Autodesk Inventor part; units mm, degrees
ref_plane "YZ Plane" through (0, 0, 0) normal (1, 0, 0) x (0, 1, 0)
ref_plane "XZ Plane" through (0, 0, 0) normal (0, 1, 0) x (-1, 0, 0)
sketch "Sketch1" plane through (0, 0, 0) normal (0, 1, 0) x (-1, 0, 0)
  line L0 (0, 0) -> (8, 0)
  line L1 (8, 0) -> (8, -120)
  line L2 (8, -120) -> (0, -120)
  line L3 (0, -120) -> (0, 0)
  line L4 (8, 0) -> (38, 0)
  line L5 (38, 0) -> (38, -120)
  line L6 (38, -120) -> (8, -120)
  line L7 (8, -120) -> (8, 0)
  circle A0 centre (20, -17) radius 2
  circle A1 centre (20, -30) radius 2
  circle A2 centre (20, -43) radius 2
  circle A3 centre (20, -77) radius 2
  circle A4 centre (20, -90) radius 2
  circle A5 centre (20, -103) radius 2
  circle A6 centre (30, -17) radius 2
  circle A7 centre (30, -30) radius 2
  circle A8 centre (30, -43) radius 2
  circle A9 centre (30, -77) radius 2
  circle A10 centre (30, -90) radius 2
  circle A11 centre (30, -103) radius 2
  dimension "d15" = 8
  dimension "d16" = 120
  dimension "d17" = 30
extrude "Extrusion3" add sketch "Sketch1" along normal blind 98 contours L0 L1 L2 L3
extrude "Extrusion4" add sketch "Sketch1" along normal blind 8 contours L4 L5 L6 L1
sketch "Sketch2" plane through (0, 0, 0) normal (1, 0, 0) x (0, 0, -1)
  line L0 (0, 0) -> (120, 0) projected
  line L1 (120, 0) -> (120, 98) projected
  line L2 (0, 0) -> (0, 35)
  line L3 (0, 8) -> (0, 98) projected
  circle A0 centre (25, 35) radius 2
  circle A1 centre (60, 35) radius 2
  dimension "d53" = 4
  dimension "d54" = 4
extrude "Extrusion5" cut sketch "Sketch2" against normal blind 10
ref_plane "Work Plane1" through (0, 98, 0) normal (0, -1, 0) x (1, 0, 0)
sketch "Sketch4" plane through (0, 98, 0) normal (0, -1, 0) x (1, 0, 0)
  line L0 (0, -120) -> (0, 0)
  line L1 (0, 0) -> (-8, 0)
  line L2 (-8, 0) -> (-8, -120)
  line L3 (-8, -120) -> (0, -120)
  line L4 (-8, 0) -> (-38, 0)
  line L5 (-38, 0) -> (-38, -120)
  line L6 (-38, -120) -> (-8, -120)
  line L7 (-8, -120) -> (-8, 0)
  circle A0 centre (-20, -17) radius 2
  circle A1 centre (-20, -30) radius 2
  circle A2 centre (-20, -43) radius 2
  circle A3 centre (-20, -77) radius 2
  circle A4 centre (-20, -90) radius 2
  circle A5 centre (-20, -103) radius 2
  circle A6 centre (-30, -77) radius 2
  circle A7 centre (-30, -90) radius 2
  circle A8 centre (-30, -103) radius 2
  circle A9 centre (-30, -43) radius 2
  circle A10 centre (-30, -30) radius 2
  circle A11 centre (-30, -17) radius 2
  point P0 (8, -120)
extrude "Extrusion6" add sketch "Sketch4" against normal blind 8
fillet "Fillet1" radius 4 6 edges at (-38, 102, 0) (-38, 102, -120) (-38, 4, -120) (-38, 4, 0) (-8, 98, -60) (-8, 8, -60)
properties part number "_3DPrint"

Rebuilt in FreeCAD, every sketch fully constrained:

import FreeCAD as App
import Part
import Sketcher

V = App.Vector
Q = App.Units.Quantity


def edges_at(feature, points):
    """Names of the edges that pass closest to the given points."""
    edges = feature.Shape.Edges
    near = lambda p: min(range(len(edges)), key=lambda i: edges[i].distToShape(Part.Vertex(*p))[0])
    return sorted({f"Edge{near(p) + 1}" for p in points})


def add_polygon(sketch, points):
    """Adds a closed chain of lines whose ends are joined by coincident constraints."""
    first, n = sketch.GeometryCount, len(points)
    for a, b in zip(points, points[1:] + points[:1]):
        sketch.addGeometry(Part.LineSegment(App.Vector(*a, 0), App.Vector(*b, 0)), False)
    for i in range(n):
        sketch.addConstraint(Sketcher.Constraint("Coincident", first + i, 2, first + (i + 1) % n, 1))

doc = App.newDocument("Part")
body = doc.addObject("PartDesign::Body", "Body")

sketch1 = doc.addObject("Sketcher::SketchObject", "Sketch")
body.addObject(sketch1)
sketch1.AttachmentSupport = (doc.XZ_Plane, [""])
sketch1.MapMode = "FlatFace"
add_polygon(sketch1, [(-8, 0), (0, 0), (0, -120), (-8, -120)])
sketch1.addConstraint([
    Sketcher.Constraint("Horizontal", 0),
    Sketcher.Constraint("Vertical", 1),
    Sketcher.Constraint("Horizontal", 2),
    Sketcher.Constraint("Vertical", 3),
    Sketcher.Constraint("Coincident", 0, 2, -1, 1),
    Sketcher.Constraint("DistanceX", 0, 1, 0, 2, Q("8 mm")),
    Sketcher.Constraint("DistanceY", 1, 2, 1, 1, Q("120 mm")),
])
pad1 = doc.addObject("PartDesign::Pad", "Pad")
body.addObject(pad1)
pad1.Profile = sketch1
pad1.Length = 98
pad1.Reversed = True

sketch2 = doc.addObject("Sketcher::SketchObject", "Sketch001")
body.addObject(sketch2)
sketch2.AttachmentSupport = (doc.XZ_Plane, [""])
sketch2.MapMode = "FlatFace"
add_polygon(sketch2, [(-38, 0), (-8, 0), (-8, -120), (-38, -120)])
sketch2.addGeometry(Part.Circle(V(-20, -103, 0), V(0, 0, 1), 2), False)
sketch2.addGeometry(Part.Circle(V(-30, -103, 0), V(0, 0, 1), 2), False)
sketch2.addGeometry(Part.Circle(V(-20, -90, 0), V(0, 0, 1), 2), False)
sketch2.addGeometry(Part.Circle(V(-20, -77, 0), V(0, 0, 1), 2), False)
sketch2.addGeometry(Part.Circle(V(-30, -90, 0), V(0, 0, 1), 2), False)
sketch2.addGeometry(Part.Circle(V(-30, -77, 0), V(0, 0, 1), 2), False)
sketch2.addGeometry(Part.Circle(V(-20, -43, 0), V(0, 0, 1), 2), False)
sketch2.addGeometry(Part.Circle(V(-30, -43, 0), V(0, 0, 1), 2), False)
sketch2.addGeometry(Part.Circle(V(-20, -30, 0), V(0, 0, 1), 2), False)
sketch2.addGeometry(Part.Circle(V(-20, -17, 0), V(0, 0, 1), 2), False)
sketch2.addGeometry(Part.Circle(V(-30, -30, 0), V(0, 0, 1), 2), False)
sketch2.addGeometry(Part.Circle(V(-30, -17, 0), V(0, 0, 1), 2), False)
sketch2.addConstraint([
    Sketcher.Constraint("Horizontal", 0),
    Sketcher.Constraint("Vertical", 1),
    Sketcher.Constraint("Horizontal", 2),
    Sketcher.Constraint("Vertical", 3),
    Sketcher.Constraint("Equal", 4, 5),
    Sketcher.Constraint("Equal", 5, 6),
    Sketcher.Constraint("Equal", 6, 7),
    Sketcher.Constraint("Equal", 7, 8),
    Sketcher.Constraint("Equal", 8, 9),
    Sketcher.Constraint("Equal", 9, 10),
    Sketcher.Constraint("Equal", 10, 11),
    Sketcher.Constraint("Equal", 11, 12),
    Sketcher.Constraint("Equal", 12, 13),
    Sketcher.Constraint("Equal", 13, 14),
    Sketcher.Constraint("Equal", 14, 15),
    Sketcher.Constraint("PointOnObject", 0, 2, -1),
    Sketcher.Constraint("Horizontal", 4, 3, 5, 3),
    Sketcher.Constraint("Horizontal", 6, 3, 8, 3),
    Sketcher.Constraint("Horizontal", 7, 3, 9, 3),
    Sketcher.Constraint("Horizontal", 10, 3, 11, 3),
    Sketcher.Constraint("Horizontal", 12, 3, 14, 3),
    Sketcher.Constraint("Horizontal", 13, 3, 15, 3),
    Sketcher.Constraint("Vertical", 4, 3, 6, 3),
    Sketcher.Constraint("Vertical", 6, 3, 7, 3),
    Sketcher.Constraint("Vertical", 5, 3, 8, 3),
    Sketcher.Constraint("Vertical", 8, 3, 9, 3),
    Sketcher.Constraint("Vertical", 7, 3, 10, 3),
    Sketcher.Constraint("Vertical", 9, 3, 11, 3),
    Sketcher.Constraint("Vertical", 10, 3, 12, 3),
    Sketcher.Constraint("Vertical", 12, 3, 13, 3),
    Sketcher.Constraint("Vertical", 11, 3, 14, 3),
    Sketcher.Constraint("Vertical", 14, 3, 15, 3),
    Sketcher.Constraint("DistanceX", 0, 1, 0, 2, Q("30 mm")),
    Sketcher.Constraint("DistanceY", 1, 2, 1, 1, Q("120 mm")),
    Sketcher.Constraint("Diameter", 4, Q("4 mm")),
    Sketcher.Constraint("DistanceX", 5, 3, -1, 1, Q("30 mm")),
    Sketcher.Constraint("DistanceY", 12, 3, -1, 1, Q("30 mm")),
    Sketcher.Constraint("DistanceX", 0, 2, -1, 1, Q("8 mm")),
    Sketcher.Constraint("DistanceY", 1, 2, 6, 3, Q("30 mm")),
    Sketcher.Constraint("DistanceX", 4, 3, -1, 1, Q("20 mm")),
    Sketcher.Constraint("DistanceY", 4, 3, -1, 1, Q("103 mm")),
    Sketcher.Constraint("DistanceY", 7, 3, -1, 1, Q("77 mm")),
    Sketcher.Constraint("DistanceY", 10, 3, -1, 1, Q("43 mm")),
    Sketcher.Constraint("DistanceY", 13, 3, -1, 1, Q("17 mm")),
])
pad2 = doc.addObject("PartDesign::Pad", "Pad001")
body.addObject(pad2)
pad2.Profile = sketch2
pad2.Length = 8
pad2.Reversed = True

sketch3 = doc.addObject("Sketcher::SketchObject", "Sketch002")
body.addObject(sketch3)
sketch3.AttachmentSupport = (doc.YZ_Plane, [""])
sketch3.MapMode = "FlatFace"
sketch3.addGeometry([
    Part.Circle(V(35, -25, 0), V(0, 0, 1), 2),
    Part.Circle(V(35, -60, 0), V(0, 0, 1), 2),
], False)
sketch3.addConstraint([
    Sketcher.Constraint("Equal", 0, 1),
    Sketcher.Constraint("Vertical", 0, 3, 1, 3),
    Sketcher.Constraint("Diameter", 0, Q("4 mm")),
    Sketcher.Constraint("DistanceX", -1, 1, 0, 3, Q("35 mm")),
    Sketcher.Constraint("DistanceY", 0, 3, -1, 1, Q("25 mm")),
    Sketcher.Constraint("DistanceY", 1, 3, -1, 1, Q("60 mm")),
])
pocket1 = doc.addObject("PartDesign::Pocket", "Pocket")
body.addObject(pocket1)
pocket1.Profile = sketch3
pocket1.Length = 10

sketch4 = doc.addObject("Sketcher::SketchObject", "Sketch003")
body.addObject(sketch4)
sketch4.AttachmentSupport = (doc.XZ_Plane, [""])
sketch4.MapMode = "FlatFace"
sketch4.AttachmentOffset = App.Placement(V(0, 0, -98), App.Rotation())
add_polygon(sketch4, [(0, -120), (0, 0), (-38, 0), (-38, -120)])
sketch4.addGeometry(Part.Circle(V(-20, -17, 0), V(0, 0, 1), 2), False)
sketch4.addGeometry(Part.Circle(V(-30, -103, 0), V(0, 0, 1), 2), False)
sketch4.addGeometry(Part.Circle(V(-20, -103, 0), V(0, 0, 1), 2), False)
sketch4.addGeometry(Part.Circle(V(-30, -90, 0), V(0, 0, 1), 2), False)
sketch4.addGeometry(Part.Circle(V(-30, -77, 0), V(0, 0, 1), 2), False)
sketch4.addGeometry(Part.Circle(V(-20, -90, 0), V(0, 0, 1), 2), False)
sketch4.addGeometry(Part.Circle(V(-20, -77, 0), V(0, 0, 1), 2), False)
sketch4.addGeometry(Part.Circle(V(-30, -43, 0), V(0, 0, 1), 2), False)
sketch4.addGeometry(Part.Circle(V(-20, -43, 0), V(0, 0, 1), 2), False)
sketch4.addGeometry(Part.Circle(V(-30, -30, 0), V(0, 0, 1), 2), False)
sketch4.addGeometry(Part.Circle(V(-30, -17, 0), V(0, 0, 1), 2), False)
sketch4.addGeometry(Part.Circle(V(-20, -30, 0), V(0, 0, 1), 2), False)
sketch4.addConstraint([
    Sketcher.Constraint("Vertical", 0),
    Sketcher.Constraint("Horizontal", 1),
    Sketcher.Constraint("Vertical", 2),
    Sketcher.Constraint("Horizontal", 3),
    Sketcher.Constraint("Coincident", 0, 2, -1, 1),
    Sketcher.Constraint("Equal", 4, 5),
    Sketcher.Constraint("Equal", 5, 6),
    Sketcher.Constraint("Equal", 6, 7),
    Sketcher.Constraint("Equal", 7, 8),
    Sketcher.Constraint("Equal", 8, 9),
    Sketcher.Constraint("Equal", 9, 10),
    Sketcher.Constraint("Equal", 10, 11),
    Sketcher.Constraint("Equal", 11, 12),
    Sketcher.Constraint("Equal", 12, 13),
    Sketcher.Constraint("Equal", 13, 14),
    Sketcher.Constraint("Equal", 14, 15),
    Sketcher.Constraint("Horizontal", 5, 3, 6, 3),
    Sketcher.Constraint("Horizontal", 7, 3, 9, 3),
    Sketcher.Constraint("Horizontal", 8, 3, 10, 3),
    Sketcher.Constraint("Horizontal", 11, 3, 12, 3),
    Sketcher.Constraint("Horizontal", 4, 3, 14, 3),
    Sketcher.Constraint("Horizontal", 13, 3, 15, 3),
    Sketcher.Constraint("Vertical", 4, 3, 6, 3),
    Sketcher.Constraint("Vertical", 5, 3, 7, 3),
    Sketcher.Constraint("Vertical", 7, 3, 8, 3),
    Sketcher.Constraint("Vertical", 6, 3, 9, 3),
    Sketcher.Constraint("Vertical", 9, 3, 10, 3),
    Sketcher.Constraint("Vertical", 8, 3, 11, 3),
    Sketcher.Constraint("Vertical", 10, 3, 12, 3),
    Sketcher.Constraint("Vertical", 11, 3, 13, 3),
    Sketcher.Constraint("Vertical", 13, 3, 14, 3),
    Sketcher.Constraint("Vertical", 12, 3, 15, 3),
    Sketcher.Constraint("Diameter", 4, Q("4 mm")),
    Sketcher.Constraint("DistanceX", 1, 2, 1, 1, Q("38 mm")),
    Sketcher.Constraint("DistanceY", 0, 1, 0, 2, Q("120 mm")),
    Sketcher.Constraint("DistanceX", 4, 3, -1, 1, Q("20 mm")),
    Sketcher.Constraint("DistanceY", 4, 3, -1, 1, Q("17 mm")),
    Sketcher.Constraint("DistanceX", 5, 3, -1, 1, Q("30 mm")),
    Sketcher.Constraint("DistanceY", 5, 3, -1, 1, Q("103 mm")),
    Sketcher.Constraint("DistanceY", 7, 3, -1, 1, Q("90 mm")),
    Sketcher.Constraint("DistanceY", 8, 3, -1, 1, Q("77 mm")),
    Sketcher.Constraint("DistanceY", 11, 3, -1, 1, Q("43 mm")),
    Sketcher.Constraint("DistanceY", 13, 3, -1, 1, Q("30 mm")),
])
pad3 = doc.addObject("PartDesign::Pad", "Pad002")
body.addObject(pad3)
pad3.Profile = sketch4
pad3.Length = 8
pad3.Reversed = True
doc.recompute()

fillet = doc.addObject("PartDesign::Fillet", "Fillet")
body.addObject(fillet)
fillet.Base = (pad3, edges_at(pad3, [
    (-38, 102, 0),
    (-38, 102, -120),
    (-38, 4, -120),
    (-38, 4, 0),
    (-8, 98, -60),
    (-8, 8, -60),
]))
fillet.Radius = 4

doc.recompute()
